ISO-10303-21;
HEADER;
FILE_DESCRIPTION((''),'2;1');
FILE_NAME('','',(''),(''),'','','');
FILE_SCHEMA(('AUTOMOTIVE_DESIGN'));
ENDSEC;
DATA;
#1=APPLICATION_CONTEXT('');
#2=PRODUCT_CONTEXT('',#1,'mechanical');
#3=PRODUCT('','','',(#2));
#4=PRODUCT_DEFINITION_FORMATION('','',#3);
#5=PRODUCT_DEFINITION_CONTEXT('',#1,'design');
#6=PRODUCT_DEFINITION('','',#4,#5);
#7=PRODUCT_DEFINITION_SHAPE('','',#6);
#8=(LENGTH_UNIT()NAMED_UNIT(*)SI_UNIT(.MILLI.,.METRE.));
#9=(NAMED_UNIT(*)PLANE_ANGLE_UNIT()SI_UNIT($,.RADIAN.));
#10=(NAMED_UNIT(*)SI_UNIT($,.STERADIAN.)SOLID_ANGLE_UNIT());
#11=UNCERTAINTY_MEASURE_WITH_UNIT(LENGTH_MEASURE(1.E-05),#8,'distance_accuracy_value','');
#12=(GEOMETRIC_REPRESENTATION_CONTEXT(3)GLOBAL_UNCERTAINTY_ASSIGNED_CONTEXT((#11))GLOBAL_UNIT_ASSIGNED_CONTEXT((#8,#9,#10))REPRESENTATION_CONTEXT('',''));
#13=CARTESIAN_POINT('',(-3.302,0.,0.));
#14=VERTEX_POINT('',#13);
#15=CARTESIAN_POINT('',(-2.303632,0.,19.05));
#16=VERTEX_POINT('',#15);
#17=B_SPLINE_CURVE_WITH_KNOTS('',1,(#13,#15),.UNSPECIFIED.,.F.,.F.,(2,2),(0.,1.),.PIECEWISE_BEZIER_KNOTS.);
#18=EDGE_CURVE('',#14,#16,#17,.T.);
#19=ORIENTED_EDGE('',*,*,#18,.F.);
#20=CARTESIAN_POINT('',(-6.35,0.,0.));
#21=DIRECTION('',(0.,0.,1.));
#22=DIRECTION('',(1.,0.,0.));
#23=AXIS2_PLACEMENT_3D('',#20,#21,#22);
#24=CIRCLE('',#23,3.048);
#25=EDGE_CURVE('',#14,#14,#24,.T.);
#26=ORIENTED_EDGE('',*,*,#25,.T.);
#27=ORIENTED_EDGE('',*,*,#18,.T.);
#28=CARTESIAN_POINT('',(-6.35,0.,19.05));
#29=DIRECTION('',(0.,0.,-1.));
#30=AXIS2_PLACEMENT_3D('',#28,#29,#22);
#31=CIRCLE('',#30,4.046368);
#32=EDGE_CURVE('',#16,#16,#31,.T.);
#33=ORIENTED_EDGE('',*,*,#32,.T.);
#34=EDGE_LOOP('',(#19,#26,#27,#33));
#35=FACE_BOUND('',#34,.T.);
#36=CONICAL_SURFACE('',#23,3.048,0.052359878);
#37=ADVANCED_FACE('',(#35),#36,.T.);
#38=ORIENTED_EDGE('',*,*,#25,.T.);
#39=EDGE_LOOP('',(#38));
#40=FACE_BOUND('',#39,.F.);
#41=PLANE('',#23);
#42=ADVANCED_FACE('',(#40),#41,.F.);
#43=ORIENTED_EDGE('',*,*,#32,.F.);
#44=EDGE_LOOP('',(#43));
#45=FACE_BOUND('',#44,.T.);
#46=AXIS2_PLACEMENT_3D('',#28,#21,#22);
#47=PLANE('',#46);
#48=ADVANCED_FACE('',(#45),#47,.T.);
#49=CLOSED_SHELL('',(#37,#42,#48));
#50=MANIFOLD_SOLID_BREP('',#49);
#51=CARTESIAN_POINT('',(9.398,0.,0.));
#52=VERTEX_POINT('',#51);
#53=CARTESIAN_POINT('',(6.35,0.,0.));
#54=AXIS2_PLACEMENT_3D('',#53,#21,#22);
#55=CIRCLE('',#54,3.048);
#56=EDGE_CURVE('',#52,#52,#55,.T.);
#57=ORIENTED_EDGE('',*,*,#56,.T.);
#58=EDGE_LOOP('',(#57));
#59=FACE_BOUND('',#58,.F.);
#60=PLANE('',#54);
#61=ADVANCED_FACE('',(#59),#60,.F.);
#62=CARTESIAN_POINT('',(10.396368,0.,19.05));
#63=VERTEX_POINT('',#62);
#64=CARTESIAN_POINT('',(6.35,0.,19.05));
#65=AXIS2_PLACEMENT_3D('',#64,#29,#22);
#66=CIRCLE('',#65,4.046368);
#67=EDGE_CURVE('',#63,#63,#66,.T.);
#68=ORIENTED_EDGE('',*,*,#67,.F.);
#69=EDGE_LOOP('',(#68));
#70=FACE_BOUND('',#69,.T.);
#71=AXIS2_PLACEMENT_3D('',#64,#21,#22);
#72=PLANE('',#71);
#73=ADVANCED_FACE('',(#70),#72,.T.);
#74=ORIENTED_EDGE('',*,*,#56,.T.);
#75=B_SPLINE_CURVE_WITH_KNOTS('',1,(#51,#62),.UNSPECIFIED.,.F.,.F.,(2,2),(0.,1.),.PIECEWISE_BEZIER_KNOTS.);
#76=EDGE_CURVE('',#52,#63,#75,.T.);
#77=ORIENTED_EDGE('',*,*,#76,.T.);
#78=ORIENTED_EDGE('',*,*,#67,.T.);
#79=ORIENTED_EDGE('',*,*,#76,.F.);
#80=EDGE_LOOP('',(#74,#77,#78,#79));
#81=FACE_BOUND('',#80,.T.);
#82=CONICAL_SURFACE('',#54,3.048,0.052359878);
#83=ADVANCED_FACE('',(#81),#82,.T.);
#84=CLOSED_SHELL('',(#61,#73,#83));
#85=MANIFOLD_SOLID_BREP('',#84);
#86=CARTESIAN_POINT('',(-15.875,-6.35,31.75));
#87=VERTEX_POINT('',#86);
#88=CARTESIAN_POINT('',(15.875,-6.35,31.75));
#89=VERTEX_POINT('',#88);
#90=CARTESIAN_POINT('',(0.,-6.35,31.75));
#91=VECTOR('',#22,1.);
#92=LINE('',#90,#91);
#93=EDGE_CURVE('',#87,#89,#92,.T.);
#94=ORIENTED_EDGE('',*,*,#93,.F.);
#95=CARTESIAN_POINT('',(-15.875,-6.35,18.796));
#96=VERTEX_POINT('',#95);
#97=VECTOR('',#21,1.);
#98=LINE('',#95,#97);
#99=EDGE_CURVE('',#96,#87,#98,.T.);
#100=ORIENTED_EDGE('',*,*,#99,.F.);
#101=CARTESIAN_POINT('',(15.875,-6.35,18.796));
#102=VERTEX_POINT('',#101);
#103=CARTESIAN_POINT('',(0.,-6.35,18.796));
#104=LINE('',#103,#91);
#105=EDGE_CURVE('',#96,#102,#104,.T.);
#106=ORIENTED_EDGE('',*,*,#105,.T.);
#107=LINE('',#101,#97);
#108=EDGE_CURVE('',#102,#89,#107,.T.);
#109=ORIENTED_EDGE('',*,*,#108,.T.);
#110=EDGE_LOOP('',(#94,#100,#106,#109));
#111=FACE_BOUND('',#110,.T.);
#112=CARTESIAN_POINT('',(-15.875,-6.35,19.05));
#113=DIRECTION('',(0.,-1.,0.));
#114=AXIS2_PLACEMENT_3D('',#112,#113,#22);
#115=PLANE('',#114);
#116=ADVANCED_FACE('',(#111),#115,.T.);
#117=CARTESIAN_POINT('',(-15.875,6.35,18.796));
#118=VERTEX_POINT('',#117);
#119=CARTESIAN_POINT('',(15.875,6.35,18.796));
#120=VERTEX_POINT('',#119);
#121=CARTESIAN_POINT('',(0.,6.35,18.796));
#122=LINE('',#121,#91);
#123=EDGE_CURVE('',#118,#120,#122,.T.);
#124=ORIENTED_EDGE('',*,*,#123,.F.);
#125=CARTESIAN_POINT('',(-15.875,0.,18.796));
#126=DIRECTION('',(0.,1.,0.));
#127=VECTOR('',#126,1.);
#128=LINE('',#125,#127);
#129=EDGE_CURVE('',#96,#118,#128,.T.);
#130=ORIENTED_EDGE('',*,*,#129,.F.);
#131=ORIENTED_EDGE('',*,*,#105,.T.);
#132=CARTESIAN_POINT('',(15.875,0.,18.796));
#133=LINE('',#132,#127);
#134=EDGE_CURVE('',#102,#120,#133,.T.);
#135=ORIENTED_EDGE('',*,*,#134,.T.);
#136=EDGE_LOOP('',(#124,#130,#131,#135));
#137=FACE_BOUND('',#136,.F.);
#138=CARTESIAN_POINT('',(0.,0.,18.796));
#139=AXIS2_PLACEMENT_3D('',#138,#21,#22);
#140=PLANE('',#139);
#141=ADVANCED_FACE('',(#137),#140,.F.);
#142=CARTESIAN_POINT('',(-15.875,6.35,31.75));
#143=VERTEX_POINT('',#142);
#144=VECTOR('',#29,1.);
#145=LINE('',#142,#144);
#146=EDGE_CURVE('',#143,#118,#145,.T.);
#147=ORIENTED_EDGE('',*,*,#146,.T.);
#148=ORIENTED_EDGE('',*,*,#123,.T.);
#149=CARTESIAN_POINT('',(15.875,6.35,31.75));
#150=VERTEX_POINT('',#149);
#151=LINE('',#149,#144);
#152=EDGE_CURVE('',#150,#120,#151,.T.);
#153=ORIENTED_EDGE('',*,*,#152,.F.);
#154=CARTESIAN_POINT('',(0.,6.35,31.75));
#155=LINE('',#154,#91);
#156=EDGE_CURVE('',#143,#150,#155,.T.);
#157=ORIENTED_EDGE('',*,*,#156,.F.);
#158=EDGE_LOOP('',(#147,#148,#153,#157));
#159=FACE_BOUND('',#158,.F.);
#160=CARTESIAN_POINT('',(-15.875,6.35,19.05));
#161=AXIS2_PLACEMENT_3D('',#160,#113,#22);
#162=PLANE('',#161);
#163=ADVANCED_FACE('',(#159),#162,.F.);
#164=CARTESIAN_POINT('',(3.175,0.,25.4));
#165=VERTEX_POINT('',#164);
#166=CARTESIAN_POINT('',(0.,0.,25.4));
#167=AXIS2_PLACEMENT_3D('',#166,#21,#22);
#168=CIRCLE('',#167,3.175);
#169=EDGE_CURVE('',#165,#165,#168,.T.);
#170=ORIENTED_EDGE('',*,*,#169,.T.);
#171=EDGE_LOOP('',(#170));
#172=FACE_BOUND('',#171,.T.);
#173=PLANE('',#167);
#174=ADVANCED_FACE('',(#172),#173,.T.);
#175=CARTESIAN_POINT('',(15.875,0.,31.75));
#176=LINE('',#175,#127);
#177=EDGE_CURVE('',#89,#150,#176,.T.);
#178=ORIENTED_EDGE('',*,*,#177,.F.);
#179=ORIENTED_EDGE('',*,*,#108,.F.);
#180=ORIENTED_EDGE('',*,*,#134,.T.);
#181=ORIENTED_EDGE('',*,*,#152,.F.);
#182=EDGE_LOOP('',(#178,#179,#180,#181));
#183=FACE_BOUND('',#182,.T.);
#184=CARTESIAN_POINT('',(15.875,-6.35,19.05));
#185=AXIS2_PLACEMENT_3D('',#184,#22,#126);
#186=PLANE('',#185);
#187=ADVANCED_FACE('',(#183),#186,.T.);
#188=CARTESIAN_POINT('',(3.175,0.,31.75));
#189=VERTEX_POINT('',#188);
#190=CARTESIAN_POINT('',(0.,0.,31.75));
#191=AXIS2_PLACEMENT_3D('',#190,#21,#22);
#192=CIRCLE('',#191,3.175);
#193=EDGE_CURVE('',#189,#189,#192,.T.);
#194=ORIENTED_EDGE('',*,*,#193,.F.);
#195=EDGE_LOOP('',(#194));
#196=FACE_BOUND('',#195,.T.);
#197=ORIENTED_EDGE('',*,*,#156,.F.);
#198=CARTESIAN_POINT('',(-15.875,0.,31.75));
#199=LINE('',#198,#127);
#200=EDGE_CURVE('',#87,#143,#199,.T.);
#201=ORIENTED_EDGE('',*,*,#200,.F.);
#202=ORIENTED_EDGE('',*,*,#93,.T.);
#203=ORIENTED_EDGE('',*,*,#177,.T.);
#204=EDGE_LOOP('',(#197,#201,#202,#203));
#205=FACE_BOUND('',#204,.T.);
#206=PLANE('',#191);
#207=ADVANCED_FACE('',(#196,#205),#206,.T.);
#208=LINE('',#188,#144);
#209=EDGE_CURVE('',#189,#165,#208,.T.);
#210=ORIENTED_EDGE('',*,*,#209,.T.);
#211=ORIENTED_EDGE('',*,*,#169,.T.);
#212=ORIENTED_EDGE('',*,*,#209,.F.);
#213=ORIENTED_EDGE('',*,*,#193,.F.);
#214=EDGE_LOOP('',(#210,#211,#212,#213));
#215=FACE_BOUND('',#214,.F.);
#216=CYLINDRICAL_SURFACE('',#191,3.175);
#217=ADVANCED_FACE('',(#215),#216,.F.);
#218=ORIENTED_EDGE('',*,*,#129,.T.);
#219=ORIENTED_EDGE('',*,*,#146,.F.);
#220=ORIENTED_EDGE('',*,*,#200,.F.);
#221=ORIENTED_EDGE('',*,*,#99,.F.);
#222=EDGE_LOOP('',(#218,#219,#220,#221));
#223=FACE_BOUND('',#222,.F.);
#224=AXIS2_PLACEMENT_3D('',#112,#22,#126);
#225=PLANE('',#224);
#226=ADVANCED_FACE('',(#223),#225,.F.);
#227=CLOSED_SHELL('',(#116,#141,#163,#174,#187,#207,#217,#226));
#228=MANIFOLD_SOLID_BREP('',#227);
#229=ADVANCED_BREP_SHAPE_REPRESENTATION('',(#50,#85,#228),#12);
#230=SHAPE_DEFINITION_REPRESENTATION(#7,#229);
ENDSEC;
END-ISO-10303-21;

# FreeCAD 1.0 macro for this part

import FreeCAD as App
import Part
import Sketcher
Q = App.Units.Quantity


def add_polygon(sketch, points):
    """Adds a closed chain of lines whose ends are joined by coincident constraints."""
    first, n = sketch.GeometryCount, len(points)
    for a, b in zip(points, points[1:] + points[:1]):
        sketch.addGeometry(Part.LineSegment(App.Vector(*a, 0), App.Vector(*b, 0)), False)
    for i in range(n):
        sketch.addConstraint(Sketcher.Constraint("Coincident", first + i, 2, first + (i + 1) % n, 1))

doc = App.newDocument("Part")
body = doc.addObject("PartDesign::Body", "Body")

# Sketch on XY plane
sketch1 = doc.addObject("Sketcher::SketchObject", "Sketch")
body.addObject(sketch1)
sketch1.AttachmentSupport = (doc.XY_Plane, [""])
sketch1.MapMode = "FlatFace"
sketch1.addGeometry(Part.Circle(App.Vector(6.3, 0, 0), App.Vector(0, 0, 1), 3), False)
sketch1.addConstraint([
    Sketcher.Constraint("PointOnObject", 0, 3, -1),
    Sketcher.Constraint("Diameter", 0, Q("0.24 in")),
    Sketcher.Constraint("DistanceX", -1, 1, 0, 3, Q("0.25 in")),
])
pad1 = doc.addObject("PartDesign::Pad", "Pad")
body.addObject(pad1)
pad1.Profile = sketch1
pad1.Length = Q("0.75 in")
pad1.TaperAngle = 3
body2 = doc.addObject("PartDesign::Body", "Body001")

# Sketch on XY plane
sketch2 = doc.addObject("Sketcher::SketchObject", "Sketch001")
body2.addObject(sketch2)
sketch2.AttachmentSupport = (doc.getObject("XY_Plane001"), [""])
sketch2.MapMode = "FlatFace"
sketch2.addGeometry(Part.Circle(App.Vector(-6.3, 0, 0), App.Vector(0, 0, 1), 3), False)
sketch2.addConstraint([
    Sketcher.Constraint("PointOnObject", 0, 3, -1),
    Sketcher.Constraint("Diameter", 0, Q("0.24 in")),
    Sketcher.Constraint("DistanceX", 0, 3, -1, 1, Q("0.25 in")),
])
pad2 = doc.addObject("PartDesign::Pad", "Pad001")
body2.addObject(pad2)
pad2.Profile = sketch2
pad2.Length = Q("0.75 in")
pad2.TaperAngle = 3
body3 = doc.addObject("PartDesign::Body", "Body002")

# Sketch on XY plane
sketch3 = doc.addObject("Sketcher::SketchObject", "Sketch002")
body3.addObject(sketch3)
sketch3.AttachmentSupport = (doc.getObject("XY_Plane002"), [""])
sketch3.MapMode = "FlatFace"
sketch3.AttachmentOffset = App.Placement(App.Vector(0, 0, 0.75 * 25.4), App.Rotation())
add_polygon(sketch3, [(-16, 6), (-16, -6), (16, -6), (16, 6)])  # lines 0-3
sketch3.addConstraint([
    Sketcher.Constraint("Vertical", 0),
    Sketcher.Constraint("Horizontal", 1),
    Sketcher.Constraint("Vertical", 2),
    Sketcher.Constraint("Horizontal", 3),
    Sketcher.Constraint("Symmetric", 0, 2, 2, 2, -1, 1),
    Sketcher.Constraint("DistanceY", 0, 2, 0, 1, Q("0.5 in")),
    Sketcher.Constraint("DistanceX", 1, 1, 1, 2, Q("1.25 in")),
])
pad3 = doc.addObject("PartDesign::Pad", "Pad002")
body3.addObject(pad3)
pad3.Profile = sketch3
pad3.Type = "TwoLengths"
pad3.Length = Q("0.5 in")
pad3.Length2 = Q("0.01 in")

# Sketch on XY plane
sketch4 = doc.addObject("Sketcher::SketchObject", "Sketch003")
body3.addObject(sketch4)
sketch4.AttachmentSupport = (doc.getObject("XY_Plane002"), [""])
sketch4.MapMode = "FlatFace"
sketch4.AttachmentOffset = App.Placement(App.Vector(0, 0, 1.25 * 25.4), App.Rotation())
sketch4.addGeometry(Part.Circle(App.Vector(0, 0, 0), App.Vector(0, 0, 1), 3.2), False)
sketch4.addConstraint([
    Sketcher.Constraint("Coincident", 0, 3, -1, 1),
    Sketcher.Constraint("Diameter", 0, Q("0.25 in")),
])
pocket1 = doc.addObject("PartDesign::Pocket", "Pocket")
body3.addObject(pocket1)
pocket1.Profile = sketch4
pocket1.Length = Q("0.25 in")

doc.recompute()
